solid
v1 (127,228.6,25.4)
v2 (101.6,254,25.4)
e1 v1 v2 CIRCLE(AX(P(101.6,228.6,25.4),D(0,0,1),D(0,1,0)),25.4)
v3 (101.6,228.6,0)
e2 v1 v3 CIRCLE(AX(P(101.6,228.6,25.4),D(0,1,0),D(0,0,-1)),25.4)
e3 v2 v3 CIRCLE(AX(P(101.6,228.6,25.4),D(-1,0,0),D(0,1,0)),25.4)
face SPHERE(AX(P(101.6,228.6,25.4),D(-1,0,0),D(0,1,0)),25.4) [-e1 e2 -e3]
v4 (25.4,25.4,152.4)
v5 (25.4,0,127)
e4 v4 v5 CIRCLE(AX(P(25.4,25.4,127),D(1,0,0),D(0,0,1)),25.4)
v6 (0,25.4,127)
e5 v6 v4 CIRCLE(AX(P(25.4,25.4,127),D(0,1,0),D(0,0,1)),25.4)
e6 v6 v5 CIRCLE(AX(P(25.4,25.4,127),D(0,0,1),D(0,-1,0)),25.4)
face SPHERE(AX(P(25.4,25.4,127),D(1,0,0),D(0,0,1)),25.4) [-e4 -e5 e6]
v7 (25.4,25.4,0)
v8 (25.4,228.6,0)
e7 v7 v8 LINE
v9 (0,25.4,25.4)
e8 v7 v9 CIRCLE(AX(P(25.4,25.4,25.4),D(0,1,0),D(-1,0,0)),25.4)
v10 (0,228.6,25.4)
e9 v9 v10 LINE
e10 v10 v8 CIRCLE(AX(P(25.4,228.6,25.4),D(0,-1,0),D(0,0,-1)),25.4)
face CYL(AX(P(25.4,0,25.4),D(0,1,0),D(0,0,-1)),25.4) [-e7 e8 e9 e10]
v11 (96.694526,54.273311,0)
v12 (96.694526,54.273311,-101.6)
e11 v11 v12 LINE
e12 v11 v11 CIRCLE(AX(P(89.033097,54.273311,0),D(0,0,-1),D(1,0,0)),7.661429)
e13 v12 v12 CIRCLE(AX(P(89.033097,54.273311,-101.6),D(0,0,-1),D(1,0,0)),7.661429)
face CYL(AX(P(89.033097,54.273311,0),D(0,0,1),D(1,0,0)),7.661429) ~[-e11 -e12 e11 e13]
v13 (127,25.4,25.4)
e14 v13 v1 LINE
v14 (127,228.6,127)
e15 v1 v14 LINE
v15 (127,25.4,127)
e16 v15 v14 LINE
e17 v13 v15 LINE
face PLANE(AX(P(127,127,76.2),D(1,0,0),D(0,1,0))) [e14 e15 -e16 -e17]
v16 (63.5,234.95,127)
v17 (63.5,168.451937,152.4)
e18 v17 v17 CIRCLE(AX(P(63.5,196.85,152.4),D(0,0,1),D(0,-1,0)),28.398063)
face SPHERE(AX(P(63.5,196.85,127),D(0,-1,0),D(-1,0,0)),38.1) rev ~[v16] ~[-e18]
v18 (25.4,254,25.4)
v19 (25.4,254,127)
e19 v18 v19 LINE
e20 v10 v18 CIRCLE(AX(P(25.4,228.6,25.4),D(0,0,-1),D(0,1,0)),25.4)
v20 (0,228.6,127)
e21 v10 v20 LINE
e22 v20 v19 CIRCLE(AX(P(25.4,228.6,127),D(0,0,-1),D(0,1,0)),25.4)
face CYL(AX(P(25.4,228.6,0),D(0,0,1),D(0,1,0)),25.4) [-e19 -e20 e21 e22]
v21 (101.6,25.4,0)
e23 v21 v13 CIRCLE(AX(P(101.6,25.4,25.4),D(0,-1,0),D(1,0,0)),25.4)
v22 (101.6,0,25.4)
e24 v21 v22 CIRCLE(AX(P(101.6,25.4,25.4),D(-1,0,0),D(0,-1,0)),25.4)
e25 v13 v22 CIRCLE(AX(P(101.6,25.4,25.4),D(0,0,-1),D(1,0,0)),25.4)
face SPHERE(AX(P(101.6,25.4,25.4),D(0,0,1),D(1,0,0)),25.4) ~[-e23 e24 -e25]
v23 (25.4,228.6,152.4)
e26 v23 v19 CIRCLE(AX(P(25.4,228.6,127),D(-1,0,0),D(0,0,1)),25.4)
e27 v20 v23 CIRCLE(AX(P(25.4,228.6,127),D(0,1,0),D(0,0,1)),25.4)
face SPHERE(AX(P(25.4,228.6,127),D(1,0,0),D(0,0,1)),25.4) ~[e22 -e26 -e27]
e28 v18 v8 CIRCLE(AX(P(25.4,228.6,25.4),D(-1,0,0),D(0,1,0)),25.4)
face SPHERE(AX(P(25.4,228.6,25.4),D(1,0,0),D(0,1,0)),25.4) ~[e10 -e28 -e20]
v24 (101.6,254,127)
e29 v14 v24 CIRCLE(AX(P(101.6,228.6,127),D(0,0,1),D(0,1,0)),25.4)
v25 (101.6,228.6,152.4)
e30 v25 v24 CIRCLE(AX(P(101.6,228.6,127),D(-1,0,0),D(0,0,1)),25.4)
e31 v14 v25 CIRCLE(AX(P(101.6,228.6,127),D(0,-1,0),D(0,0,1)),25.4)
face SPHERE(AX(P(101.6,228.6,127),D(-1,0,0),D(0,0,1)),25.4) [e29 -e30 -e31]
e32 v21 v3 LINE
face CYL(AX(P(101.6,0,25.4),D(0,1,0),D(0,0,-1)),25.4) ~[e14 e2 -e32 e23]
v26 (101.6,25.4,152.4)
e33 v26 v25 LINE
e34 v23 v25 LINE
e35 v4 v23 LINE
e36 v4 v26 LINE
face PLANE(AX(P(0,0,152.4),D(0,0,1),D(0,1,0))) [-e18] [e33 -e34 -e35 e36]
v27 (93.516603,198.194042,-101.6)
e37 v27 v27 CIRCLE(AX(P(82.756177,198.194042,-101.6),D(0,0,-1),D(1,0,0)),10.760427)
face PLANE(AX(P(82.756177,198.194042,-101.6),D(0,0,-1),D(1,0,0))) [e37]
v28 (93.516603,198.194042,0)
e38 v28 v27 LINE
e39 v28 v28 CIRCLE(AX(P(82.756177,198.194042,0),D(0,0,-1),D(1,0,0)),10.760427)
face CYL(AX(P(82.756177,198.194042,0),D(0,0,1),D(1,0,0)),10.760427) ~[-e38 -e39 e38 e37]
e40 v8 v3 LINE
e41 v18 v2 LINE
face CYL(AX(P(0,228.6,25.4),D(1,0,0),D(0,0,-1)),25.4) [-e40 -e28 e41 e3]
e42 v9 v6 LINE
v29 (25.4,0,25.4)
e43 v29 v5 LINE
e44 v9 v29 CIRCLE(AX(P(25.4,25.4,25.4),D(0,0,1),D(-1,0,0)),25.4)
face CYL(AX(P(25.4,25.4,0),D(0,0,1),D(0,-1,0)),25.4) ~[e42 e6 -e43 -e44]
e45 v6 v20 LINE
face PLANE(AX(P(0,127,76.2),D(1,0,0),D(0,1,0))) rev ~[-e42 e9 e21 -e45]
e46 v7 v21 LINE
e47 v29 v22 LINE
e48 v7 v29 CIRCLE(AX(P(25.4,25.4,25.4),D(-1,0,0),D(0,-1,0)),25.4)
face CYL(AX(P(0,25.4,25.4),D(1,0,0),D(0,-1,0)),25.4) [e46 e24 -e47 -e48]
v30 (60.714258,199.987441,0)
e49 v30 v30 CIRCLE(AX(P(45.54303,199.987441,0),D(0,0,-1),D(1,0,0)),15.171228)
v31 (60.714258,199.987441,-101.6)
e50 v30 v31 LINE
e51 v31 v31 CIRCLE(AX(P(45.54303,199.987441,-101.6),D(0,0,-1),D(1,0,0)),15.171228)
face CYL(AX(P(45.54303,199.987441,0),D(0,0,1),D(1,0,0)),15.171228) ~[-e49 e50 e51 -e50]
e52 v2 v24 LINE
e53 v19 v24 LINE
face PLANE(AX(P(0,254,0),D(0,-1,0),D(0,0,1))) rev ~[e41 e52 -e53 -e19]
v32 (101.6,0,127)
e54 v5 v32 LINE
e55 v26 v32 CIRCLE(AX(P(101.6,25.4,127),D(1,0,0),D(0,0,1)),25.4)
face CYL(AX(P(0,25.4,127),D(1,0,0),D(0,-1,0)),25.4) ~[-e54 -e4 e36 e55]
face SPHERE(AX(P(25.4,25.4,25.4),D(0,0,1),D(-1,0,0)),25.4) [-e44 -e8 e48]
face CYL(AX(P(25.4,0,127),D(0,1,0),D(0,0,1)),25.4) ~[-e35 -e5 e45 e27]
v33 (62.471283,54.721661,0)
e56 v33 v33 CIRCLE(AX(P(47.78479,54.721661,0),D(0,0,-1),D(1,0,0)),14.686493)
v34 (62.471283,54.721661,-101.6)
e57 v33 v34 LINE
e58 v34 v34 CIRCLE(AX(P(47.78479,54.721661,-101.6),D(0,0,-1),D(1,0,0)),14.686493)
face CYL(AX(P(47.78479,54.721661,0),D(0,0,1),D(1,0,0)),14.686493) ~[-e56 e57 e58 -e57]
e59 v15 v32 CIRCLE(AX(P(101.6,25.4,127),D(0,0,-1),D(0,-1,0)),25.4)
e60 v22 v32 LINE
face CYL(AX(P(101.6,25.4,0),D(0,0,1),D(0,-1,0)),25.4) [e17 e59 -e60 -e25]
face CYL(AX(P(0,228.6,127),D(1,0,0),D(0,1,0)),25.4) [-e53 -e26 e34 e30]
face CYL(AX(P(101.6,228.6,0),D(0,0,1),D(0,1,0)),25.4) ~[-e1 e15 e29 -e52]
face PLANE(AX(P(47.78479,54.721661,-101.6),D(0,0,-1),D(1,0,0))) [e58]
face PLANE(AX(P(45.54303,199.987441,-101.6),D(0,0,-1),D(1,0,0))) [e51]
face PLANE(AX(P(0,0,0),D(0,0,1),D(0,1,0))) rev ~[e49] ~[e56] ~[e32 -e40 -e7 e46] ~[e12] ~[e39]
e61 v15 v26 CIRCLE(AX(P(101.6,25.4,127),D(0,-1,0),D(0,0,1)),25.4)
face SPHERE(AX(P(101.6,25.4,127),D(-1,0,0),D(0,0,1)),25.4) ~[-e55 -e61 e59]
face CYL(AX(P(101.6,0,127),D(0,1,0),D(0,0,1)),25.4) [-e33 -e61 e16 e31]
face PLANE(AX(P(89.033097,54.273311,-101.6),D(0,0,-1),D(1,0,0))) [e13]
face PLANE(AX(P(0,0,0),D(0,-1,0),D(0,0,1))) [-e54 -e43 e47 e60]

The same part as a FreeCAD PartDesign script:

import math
import FreeCAD as App
import Part
import Sketcher
from FreeCAD import Vector
Q = App.Units.Quantity


def add_polygon(sketch, points):
    """Adds a closed chain of lines whose ends are joined by coincident constraints."""
    first, n = sketch.GeometryCount, len(points)
    for a, b in zip(points, points[1:] + points[:1]):
        sketch.addGeometry(Part.LineSegment(App.Vector(*a, 0), App.Vector(*b, 0)), False)
    for i in range(n):
        sketch.addConstraint(Sketcher.Constraint("Coincident", first + i, 2, first + (i + 1) % n, 1))

doc = App.newDocument("Part")
body = doc.addObject("PartDesign::Body", "Body")

sketch1 = body.newObject("Sketcher::SketchObject", "Sketch")
sketch1.AttachmentSupport = (doc.getObject("YZ_Plane"), [""])
sketch1.MapMode = "FlatFace"
add_polygon(sketch1, [(0, 152), (0, 0), (254, 0), (254, 152)])
sketch1.addConstraint([
    Sketcher.Constraint("Vertical", 0),
    Sketcher.Constraint("Horizontal", 1),
    Sketcher.Constraint("Vertical", 2),
    Sketcher.Constraint("Horizontal", 3),
    Sketcher.Constraint("Coincident", 0, 2, -1, 1),
    Sketcher.Constraint("DistanceX", 1, 1, 1, 2, Q("10 in")),
    Sketcher.Constraint("DistanceY", 0, 2, 0, 1, Q("6 in")),
])
pad1 = body.newObject("PartDesign::Pad", "Pad")
pad1.Profile = sketch1
pad1.Length = Q("5 in")
doc.recompute()

fillet = body.newObject("PartDesign::Fillet", "Fillet")
fillet.Base = (pad1, ["Edge1"])
fillet.UseAllEdges = True
fillet.Radius = Q("1 in")

sketch2 = body.newObject("Sketcher::SketchObject", "Sketch001")
sketch2.AttachmentSupport = (doc.getObject("XY_Plane"), [""])
sketch2.MapMode = "FlatFace"
sketch2.AttachmentOffset = App.Placement(Vector(0, 0, 5 * 25.4), App.Rotation())
sketch2.addGeometry([
    Part.LineSegment(Vector(64, 159, 0), Vector(64, 235, 0)),
    Part.ArcOfCircle(Part.Circle(Vector(64, 197, 0), Vector(0, 0, 1), 38), math.radians(90), math.radians(270)),
], False)
sketch2.addGeometry(Part.LineSegment(Vector(64, 235, 0), Vector(64, 159, 0)), True)
sketch2.addConstraint([
    Sketcher.Constraint("Coincident", 0, 1, 1, 2),
    Sketcher.Constraint("Coincident", 1, 1, 0, 2),
    Sketcher.Constraint("Vertical", 0),
    Sketcher.Constraint("Vertical", 2),
    Sketcher.Constraint("Coincident", 2, 1, 1, 1),
    Sketcher.Constraint("Vertical", 1, 3, 0, 1),
    Sketcher.Constraint("Equal", 0, 2),
    Sketcher.Constraint("Radius", 1, Q("1.5 in")),
    Sketcher.Constraint("DistanceX", -1, 1, 1, 3, Q("2.5 in")),
    Sketcher.Constraint("DistanceY", -1, 1, 1, 3, Q("7.75 in")),
])
groove = body.newObject("PartDesign::Groove", "Groove")
groove.Profile = sketch2
groove.ReferenceAxis = (sketch2, ["Axis0"])
groove.Angle = 360

sketch3 = body.newObject("Sketcher::SketchObject", "Sketch002")
sketch3.AttachmentSupport = (doc.getObject("XY_Plane"), [""])
sketch3.MapMode = "FlatFace"
sketch3.addGeometry([
    Part.Circle(Vector(48, 55, 0), Vector(0, 0, 1), 15),
    Part.Circle(Vector(89, 54, 0), Vector(0, 0, 1), 8),
    Part.Circle(Vector(46, 200, 0), Vector(0, 0, 1), 15),
    Part.Circle(Vector(83, 198, 0), Vector(0, 0, 1), 11),
], False)
sketch3.addConstraint([
    Sketcher.Constraint("Diameter", 1, 15.322859),
    Sketcher.Constraint("Diameter", 0, 29.372985),
    Sketcher.Constraint("Diameter", 2, 30.342456),
    Sketcher.Constraint("Diameter", 3, 21.520853),
    Sketcher.Constraint("DistanceY", 3, 3, 2, 3, 1.793399),
    Sketcher.Constraint("DistanceX", -1, 1, 0, 3, 47.78479),
    Sketcher.Constraint("DistanceY", -1, 1, 0, 3, 54.721661),
    Sketcher.Constraint("DistanceY", -1, 1, 1, 3, 54.273311),
    Sketcher.Constraint("DistanceX", -1, 1, 2, 3, 45.54303),
    Sketcher.Constraint("DistanceY", -1, 1, 2, 3, 199.987441),
    Sketcher.Constraint("DistanceX", 3, 3, 1, 3, 6.27692),
    Sketcher.Constraint("DistanceX", -1, 1, 1, 3, 89.033097),
])
pad2 = body.newObject("PartDesign::Pad", "Pad001")
pad2.Profile = sketch3
pad2.Length = Q("4 in")
pad2.Reversed = True

doc.recompute()
